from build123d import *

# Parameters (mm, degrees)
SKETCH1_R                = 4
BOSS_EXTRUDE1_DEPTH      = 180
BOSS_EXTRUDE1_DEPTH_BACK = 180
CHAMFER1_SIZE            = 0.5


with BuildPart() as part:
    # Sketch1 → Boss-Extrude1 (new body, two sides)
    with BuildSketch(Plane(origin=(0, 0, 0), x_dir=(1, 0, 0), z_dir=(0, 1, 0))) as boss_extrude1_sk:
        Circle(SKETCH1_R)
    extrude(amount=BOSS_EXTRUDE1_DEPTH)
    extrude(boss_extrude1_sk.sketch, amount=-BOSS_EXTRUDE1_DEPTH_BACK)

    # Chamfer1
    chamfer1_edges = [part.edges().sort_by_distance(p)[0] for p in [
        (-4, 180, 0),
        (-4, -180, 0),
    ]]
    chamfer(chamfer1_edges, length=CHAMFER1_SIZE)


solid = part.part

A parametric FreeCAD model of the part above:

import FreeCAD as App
import Part
import Sketcher


def edges_at(feature, points):
    """Names of the edges that pass closest to the given points."""
    edges = feature.Shape.Edges
    near = lambda p: min(range(len(edges)), key=lambda i: edges[i].distToShape(Part.Vertex(*p))[0])
    return sorted({f"Edge{near(p) + 1}" for p in points})

doc = App.newDocument("Part")
body = doc.addObject("PartDesign::Body", "Body")

# Sketch on XZ plane
sketch1 = body.newObject("Sketcher::SketchObject", "Sketch")
sketch1.AttachmentSupport = (doc.getObject("XZ_Plane"), [""])
sketch1.MapMode = "FlatFace"
sketch1.addGeometry(Part.Circle(App.Vector(0, 0, 0), App.Vector(0, 0, 1), 4), False)
sketch1.addConstraint([
    Sketcher.Constraint("Coincident", 0, 3, -1, 1),
    Sketcher.Constraint("Diameter", 0, 8.0),
])
pad1 = body.newObject("PartDesign::Pad", "Pad")
pad1.Profile = sketch1
pad1.Type = "TwoLengths"
pad1.Length = 180
pad1.Length2 = 180
pad1.Reversed = True
doc.recompute()

chamfer = body.newObject("PartDesign::Chamfer", "Chamfer")
chamfer.Base = (pad1, edges_at(pad1, [(-4, 180, 0), (-4, -180, 0)]))
chamfer.Size = 0.5

doc.recompute()
